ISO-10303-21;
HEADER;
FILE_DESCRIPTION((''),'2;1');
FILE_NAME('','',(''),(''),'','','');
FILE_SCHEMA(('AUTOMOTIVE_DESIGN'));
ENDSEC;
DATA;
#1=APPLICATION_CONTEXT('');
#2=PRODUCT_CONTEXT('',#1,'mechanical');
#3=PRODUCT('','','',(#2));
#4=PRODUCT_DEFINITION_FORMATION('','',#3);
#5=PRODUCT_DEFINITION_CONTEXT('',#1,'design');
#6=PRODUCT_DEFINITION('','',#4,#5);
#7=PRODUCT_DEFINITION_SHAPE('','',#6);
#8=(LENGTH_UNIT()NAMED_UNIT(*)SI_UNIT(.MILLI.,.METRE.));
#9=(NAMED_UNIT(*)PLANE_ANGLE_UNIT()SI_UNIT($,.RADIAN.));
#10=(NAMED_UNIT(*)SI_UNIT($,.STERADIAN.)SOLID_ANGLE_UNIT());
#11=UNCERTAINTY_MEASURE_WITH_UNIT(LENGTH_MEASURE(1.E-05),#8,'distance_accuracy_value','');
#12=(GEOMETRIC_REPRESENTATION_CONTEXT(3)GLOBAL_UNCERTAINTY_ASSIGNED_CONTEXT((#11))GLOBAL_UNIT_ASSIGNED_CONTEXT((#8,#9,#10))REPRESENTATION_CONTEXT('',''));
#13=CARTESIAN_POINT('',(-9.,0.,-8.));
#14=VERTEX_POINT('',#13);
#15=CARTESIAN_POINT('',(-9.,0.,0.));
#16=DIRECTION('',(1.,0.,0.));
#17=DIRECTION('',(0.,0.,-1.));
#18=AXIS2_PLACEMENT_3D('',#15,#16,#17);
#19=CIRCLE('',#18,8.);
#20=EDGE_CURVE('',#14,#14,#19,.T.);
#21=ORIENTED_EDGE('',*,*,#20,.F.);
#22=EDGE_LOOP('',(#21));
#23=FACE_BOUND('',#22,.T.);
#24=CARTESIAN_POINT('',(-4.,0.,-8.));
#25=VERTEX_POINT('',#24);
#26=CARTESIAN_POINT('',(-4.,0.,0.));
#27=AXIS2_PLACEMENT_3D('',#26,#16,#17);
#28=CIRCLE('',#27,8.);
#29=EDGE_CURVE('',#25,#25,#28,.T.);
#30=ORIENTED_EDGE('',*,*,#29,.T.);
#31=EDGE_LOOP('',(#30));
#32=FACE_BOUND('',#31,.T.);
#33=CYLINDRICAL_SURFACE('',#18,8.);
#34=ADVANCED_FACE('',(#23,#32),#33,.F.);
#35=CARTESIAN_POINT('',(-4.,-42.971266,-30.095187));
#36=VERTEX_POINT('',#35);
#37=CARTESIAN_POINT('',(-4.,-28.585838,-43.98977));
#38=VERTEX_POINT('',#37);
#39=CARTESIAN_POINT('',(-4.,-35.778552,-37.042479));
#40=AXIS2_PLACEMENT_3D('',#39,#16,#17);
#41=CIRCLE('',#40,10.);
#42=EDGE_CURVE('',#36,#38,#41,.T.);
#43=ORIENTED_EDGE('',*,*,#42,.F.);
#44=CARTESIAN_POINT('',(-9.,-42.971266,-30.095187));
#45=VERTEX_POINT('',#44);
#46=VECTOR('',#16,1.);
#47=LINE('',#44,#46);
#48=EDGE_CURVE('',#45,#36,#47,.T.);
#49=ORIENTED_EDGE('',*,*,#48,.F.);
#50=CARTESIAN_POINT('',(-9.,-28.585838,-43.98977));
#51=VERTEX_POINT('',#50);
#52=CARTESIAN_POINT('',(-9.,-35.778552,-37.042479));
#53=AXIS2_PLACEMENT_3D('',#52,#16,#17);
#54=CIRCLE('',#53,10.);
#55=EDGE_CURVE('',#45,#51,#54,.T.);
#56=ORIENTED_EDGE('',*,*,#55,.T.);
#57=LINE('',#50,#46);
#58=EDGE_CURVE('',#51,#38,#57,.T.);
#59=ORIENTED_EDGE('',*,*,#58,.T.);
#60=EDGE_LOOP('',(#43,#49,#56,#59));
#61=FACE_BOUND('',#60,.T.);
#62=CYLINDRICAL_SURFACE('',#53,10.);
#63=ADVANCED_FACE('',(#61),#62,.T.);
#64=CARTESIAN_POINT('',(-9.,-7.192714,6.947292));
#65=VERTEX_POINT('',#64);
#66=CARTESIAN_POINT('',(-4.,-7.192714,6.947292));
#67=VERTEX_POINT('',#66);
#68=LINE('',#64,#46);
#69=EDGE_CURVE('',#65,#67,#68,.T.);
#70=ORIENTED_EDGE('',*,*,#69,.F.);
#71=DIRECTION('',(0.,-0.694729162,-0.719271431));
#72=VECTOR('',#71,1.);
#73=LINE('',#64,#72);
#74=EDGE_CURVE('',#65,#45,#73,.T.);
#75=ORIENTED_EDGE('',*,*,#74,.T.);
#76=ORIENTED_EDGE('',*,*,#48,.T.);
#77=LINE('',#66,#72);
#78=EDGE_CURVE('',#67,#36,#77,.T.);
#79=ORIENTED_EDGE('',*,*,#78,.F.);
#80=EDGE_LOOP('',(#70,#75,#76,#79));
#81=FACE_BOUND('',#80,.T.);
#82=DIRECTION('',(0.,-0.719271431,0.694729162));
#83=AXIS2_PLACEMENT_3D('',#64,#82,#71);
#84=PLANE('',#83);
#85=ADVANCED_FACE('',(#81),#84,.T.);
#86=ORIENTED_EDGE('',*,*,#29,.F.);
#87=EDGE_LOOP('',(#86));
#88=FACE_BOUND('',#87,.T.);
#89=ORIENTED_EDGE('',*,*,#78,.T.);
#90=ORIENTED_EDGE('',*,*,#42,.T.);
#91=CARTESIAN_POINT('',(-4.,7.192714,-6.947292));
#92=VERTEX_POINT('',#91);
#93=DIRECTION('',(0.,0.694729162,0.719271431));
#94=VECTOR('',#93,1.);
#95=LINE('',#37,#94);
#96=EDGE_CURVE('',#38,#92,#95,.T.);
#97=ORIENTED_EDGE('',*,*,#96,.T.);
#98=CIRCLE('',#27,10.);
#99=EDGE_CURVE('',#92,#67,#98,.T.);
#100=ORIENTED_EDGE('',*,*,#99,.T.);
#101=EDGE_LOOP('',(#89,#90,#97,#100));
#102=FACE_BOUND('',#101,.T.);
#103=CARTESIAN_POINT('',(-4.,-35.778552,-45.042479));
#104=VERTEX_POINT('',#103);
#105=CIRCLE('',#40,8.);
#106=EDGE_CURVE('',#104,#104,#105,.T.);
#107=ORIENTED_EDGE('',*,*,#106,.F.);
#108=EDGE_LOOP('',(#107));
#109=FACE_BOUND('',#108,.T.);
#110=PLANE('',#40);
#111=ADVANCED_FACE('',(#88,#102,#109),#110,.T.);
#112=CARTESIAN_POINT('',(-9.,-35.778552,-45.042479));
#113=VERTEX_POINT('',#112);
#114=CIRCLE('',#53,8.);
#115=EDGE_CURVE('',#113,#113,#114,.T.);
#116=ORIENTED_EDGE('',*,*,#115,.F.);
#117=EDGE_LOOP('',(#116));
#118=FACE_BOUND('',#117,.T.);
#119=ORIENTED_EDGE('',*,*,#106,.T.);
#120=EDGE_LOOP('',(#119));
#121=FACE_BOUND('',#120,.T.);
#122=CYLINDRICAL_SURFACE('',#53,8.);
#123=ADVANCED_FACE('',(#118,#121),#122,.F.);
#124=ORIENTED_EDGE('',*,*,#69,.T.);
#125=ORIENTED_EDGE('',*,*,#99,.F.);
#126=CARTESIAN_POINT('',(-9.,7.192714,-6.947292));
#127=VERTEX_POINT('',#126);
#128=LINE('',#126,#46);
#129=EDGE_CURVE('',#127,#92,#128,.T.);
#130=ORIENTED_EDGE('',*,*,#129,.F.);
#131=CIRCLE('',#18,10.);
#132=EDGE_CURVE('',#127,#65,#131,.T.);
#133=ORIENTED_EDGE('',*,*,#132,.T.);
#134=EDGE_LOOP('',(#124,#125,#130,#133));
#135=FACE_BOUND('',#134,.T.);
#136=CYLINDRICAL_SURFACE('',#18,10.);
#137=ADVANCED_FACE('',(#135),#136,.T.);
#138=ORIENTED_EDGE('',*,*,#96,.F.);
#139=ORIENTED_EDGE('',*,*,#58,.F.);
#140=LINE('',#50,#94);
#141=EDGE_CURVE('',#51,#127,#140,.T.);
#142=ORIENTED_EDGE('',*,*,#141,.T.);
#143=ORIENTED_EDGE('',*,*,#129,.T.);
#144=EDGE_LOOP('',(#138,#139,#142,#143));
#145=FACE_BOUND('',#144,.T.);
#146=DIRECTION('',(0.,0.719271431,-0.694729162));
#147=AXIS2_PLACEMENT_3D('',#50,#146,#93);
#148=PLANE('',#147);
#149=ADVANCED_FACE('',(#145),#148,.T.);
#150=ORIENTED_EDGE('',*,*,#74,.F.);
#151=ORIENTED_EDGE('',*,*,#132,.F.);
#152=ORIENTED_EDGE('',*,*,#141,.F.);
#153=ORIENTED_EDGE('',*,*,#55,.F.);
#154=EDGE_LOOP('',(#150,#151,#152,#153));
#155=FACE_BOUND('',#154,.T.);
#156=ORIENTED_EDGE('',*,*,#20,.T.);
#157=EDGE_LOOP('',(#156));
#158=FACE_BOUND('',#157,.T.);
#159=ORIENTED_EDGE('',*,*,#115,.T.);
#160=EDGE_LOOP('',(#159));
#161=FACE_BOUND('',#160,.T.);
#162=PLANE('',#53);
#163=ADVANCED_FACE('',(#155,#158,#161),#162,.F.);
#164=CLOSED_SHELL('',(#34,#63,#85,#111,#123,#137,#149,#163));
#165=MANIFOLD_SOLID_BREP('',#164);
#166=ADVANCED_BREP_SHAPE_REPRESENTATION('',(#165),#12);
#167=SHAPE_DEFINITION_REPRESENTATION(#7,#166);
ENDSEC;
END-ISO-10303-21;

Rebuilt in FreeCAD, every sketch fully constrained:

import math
import FreeCAD as App
import Part
import Sketcher
Q = App.Units.Quantity

doc = App.newDocument("Part")
body = doc.addObject("PartDesign::Body", "Body")

# Sketch on YZ plane
sketch1 = doc.addObject("Sketcher::SketchObject", "Sketch")
body.addObject(sketch1)
sketch1.AttachmentSupport = (doc.YZ_Plane, [""])
sketch1.MapMode = "FlatFace"
sketch1.AttachmentOffset = App.Placement(App.Vector(0, 0, -4), App.Rotation())
sketch1.addGeometry([
    Part.LineSegment(App.Vector(-29, -44, 0), App.Vector(7, -7, 0)),  # 0
    Part.ArcOfCircle(Part.Circle(App.Vector(0, 0, 0), App.Vector(0, 0, 1), 10), math.radians(-44), math.radians(136)),  # 1
    Part.LineSegment(App.Vector(-7, 7, 0), App.Vector(-43, -30, 0)),  # 2
    Part.ArcOfCircle(Part.Circle(App.Vector(-36, -37, 0), App.Vector(0, 0, 1), 10), math.radians(136), math.radians(316)),  # 3
    Part.Circle(App.Vector(-36, -37, 0), App.Vector(0, 0, 1), 8),  # 4
    Part.Circle(App.Vector(0, 0, 0), App.Vector(0, 0, 1), 8),  # 5
], False)
sketch1.addConstraint([
    Sketcher.Constraint("Tangent", 0, 2, 1, 1),
    Sketcher.Constraint("Tangent", 1, 2, 2, 1),
    Sketcher.Constraint("Tangent", 2, 2, 3, 1),
    Sketcher.Constraint("Tangent", 3, 2, 0, 1),
    Sketcher.Constraint("Coincident", 1, 3, -1, 1),
    Sketcher.Constraint("Coincident", 5, 3, -1, 1),
    Sketcher.Constraint("Coincident", 4, 3, 3, 3),
    Sketcher.Constraint("Equal", 1, 3),
    Sketcher.Constraint("Equal", 4, 5),
    Sketcher.Constraint("Diameter", 4, Q("16 mm")),
    Sketcher.Constraint("Radius", 1, Q("10 mm")),
    Sketcher.Constraint("Distance", 0, Q("51.5 mm")),
    Sketcher.Constraint("DistanceX", 3, 3, -1, 1, Q("35.778552 mm")),
])
pad1 = doc.addObject("PartDesign::Pad", "Pad")
body.addObject(pad1)
pad1.Profile = sketch1
pad1.Length = 5
pad1.Reversed = True

doc.recompute()
